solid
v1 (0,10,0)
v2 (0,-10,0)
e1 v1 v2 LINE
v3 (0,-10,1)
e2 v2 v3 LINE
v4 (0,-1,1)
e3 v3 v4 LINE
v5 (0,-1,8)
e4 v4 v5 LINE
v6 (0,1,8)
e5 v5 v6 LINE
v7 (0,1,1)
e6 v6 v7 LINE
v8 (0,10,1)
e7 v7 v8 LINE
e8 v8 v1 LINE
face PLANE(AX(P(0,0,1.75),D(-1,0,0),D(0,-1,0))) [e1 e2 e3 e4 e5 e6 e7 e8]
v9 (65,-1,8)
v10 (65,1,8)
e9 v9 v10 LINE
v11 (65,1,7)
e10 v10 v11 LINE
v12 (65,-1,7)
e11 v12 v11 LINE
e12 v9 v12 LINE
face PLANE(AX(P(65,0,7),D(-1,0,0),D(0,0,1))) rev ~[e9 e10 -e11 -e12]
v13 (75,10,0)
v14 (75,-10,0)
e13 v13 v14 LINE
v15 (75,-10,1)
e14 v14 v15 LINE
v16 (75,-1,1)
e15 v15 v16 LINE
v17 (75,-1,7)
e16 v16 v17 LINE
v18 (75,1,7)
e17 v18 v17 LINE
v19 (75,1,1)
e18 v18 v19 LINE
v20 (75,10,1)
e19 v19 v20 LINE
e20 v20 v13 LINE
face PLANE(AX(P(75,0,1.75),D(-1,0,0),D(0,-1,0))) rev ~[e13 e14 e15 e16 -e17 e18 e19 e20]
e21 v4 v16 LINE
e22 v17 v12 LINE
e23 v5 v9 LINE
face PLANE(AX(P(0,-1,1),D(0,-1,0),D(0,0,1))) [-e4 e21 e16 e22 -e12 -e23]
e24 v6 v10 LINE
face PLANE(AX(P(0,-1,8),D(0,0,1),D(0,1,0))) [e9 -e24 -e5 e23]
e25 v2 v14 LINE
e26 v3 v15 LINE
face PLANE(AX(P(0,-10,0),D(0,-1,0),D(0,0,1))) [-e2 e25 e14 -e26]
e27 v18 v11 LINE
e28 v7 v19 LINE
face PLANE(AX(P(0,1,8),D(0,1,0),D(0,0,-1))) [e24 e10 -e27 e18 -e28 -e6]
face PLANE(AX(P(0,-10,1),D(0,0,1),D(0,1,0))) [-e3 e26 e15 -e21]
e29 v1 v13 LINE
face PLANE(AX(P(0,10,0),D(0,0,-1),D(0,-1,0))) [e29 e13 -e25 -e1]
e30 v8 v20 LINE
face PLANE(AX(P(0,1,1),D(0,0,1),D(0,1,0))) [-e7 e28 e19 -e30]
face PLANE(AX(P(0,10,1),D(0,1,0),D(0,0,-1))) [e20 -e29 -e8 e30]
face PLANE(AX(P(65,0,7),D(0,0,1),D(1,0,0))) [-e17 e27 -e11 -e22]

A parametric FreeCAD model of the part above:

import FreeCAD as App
import Part
import Sketcher

V = App.Vector
Q = App.Units.Quantity


def add_polygon(sketch, points):
    """Adds a closed chain of lines whose ends are joined by coincident constraints."""
    first, n = sketch.GeometryCount, len(points)
    for a, b in zip(points, points[1:] + points[:1]):
        sketch.addGeometry(Part.LineSegment(App.Vector(*a, 0), App.Vector(*b, 0)), False)
    for i in range(n):
        sketch.addConstraint(Sketcher.Constraint("Coincident", first + i, 2, first + (i + 1) % n, 1))

doc = App.newDocument("Part")
body = doc.addObject("PartDesign::Body", "Body")

# Sketch on YZ plane
sketch1 = doc.addObject("Sketcher::SketchObject", "Sketch")
body.addObject(sketch1)
sketch1.AttachmentSupport = (doc.YZ_Plane, [""])
sketch1.MapMode = "FlatFace"
add_polygon(sketch1, [(-1, 1), (-10, 1), (-10, 0), (10, 0), (10, 1), (1, 1), (1, 8), (-1, 8)])  # lines 0-7
sketch1.addConstraint([
    Sketcher.Constraint("Horizontal", 0),
    Sketcher.Constraint("Vertical", 1),
    Sketcher.Constraint("Horizontal", 2),
    Sketcher.Constraint("Vertical", 3),
    Sketcher.Constraint("Horizontal", 4),
    Sketcher.Constraint("Vertical", 5),
    Sketcher.Constraint("Horizontal", 6),
    Sketcher.Constraint("Vertical", 7),
    Sketcher.Constraint("Symmetric", 1, 2, 2, 2, -1, 1),
    Sketcher.Constraint("Symmetric", 4, 2, 7, 2, -2),
    Sketcher.Constraint("DistanceX", 0, 2, 0, 1, Q("9 mm")),
    Sketcher.Constraint("DistanceX", 2, 1, 2, 2, Q("20 mm")),
    Sketcher.Constraint("DistanceY", 1, 2, 1, 1, Q("1 mm")),
    Sketcher.Constraint("DistanceY", 5, 1, 5, 2, Q("7 mm")),
])
pad1 = doc.addObject("PartDesign::Pad", "Pad")
body.addObject(pad1)
pad1.Profile = sketch1
pad1.Length = 75

# Sketch on XZ plane
sketch2 = doc.addObject("Sketcher::SketchObject", "Sketch001")
body.addObject(sketch2)
sketch2.AttachmentSupport = (doc.XZ_Plane, [""])
sketch2.MapMode = "FlatFace"
add_polygon(sketch2, [(65, 8), (65, 7), (75, 7), (75, 8)])  # lines 0-3
sketch2.addConstraint([
    Sketcher.Constraint("Vertical", 0),
    Sketcher.Constraint("Horizontal", 1),
    Sketcher.Constraint("Vertical", 2),
    Sketcher.Constraint("Horizontal", 3),
    Sketcher.Constraint("DistanceX", 1, 1, 1, 2, Q("10 mm")),
    Sketcher.Constraint("DistanceY", 0, 2, 0, 1, Q("1 mm")),
    Sketcher.Constraint("DistanceX", -1, 1, 0, 2, Q("65 mm")),
    Sketcher.Constraint("DistanceY", -1, 1, 0, 2, Q("7 mm")),
])
pocket1 = doc.addObject("PartDesign::Pocket", "Pocket")
body.addObject(pocket1)
pocket1.Profile = sketch2
pocket1.Type = "ThroughAll"
pocket1.Midplane = True

doc.recompute()
